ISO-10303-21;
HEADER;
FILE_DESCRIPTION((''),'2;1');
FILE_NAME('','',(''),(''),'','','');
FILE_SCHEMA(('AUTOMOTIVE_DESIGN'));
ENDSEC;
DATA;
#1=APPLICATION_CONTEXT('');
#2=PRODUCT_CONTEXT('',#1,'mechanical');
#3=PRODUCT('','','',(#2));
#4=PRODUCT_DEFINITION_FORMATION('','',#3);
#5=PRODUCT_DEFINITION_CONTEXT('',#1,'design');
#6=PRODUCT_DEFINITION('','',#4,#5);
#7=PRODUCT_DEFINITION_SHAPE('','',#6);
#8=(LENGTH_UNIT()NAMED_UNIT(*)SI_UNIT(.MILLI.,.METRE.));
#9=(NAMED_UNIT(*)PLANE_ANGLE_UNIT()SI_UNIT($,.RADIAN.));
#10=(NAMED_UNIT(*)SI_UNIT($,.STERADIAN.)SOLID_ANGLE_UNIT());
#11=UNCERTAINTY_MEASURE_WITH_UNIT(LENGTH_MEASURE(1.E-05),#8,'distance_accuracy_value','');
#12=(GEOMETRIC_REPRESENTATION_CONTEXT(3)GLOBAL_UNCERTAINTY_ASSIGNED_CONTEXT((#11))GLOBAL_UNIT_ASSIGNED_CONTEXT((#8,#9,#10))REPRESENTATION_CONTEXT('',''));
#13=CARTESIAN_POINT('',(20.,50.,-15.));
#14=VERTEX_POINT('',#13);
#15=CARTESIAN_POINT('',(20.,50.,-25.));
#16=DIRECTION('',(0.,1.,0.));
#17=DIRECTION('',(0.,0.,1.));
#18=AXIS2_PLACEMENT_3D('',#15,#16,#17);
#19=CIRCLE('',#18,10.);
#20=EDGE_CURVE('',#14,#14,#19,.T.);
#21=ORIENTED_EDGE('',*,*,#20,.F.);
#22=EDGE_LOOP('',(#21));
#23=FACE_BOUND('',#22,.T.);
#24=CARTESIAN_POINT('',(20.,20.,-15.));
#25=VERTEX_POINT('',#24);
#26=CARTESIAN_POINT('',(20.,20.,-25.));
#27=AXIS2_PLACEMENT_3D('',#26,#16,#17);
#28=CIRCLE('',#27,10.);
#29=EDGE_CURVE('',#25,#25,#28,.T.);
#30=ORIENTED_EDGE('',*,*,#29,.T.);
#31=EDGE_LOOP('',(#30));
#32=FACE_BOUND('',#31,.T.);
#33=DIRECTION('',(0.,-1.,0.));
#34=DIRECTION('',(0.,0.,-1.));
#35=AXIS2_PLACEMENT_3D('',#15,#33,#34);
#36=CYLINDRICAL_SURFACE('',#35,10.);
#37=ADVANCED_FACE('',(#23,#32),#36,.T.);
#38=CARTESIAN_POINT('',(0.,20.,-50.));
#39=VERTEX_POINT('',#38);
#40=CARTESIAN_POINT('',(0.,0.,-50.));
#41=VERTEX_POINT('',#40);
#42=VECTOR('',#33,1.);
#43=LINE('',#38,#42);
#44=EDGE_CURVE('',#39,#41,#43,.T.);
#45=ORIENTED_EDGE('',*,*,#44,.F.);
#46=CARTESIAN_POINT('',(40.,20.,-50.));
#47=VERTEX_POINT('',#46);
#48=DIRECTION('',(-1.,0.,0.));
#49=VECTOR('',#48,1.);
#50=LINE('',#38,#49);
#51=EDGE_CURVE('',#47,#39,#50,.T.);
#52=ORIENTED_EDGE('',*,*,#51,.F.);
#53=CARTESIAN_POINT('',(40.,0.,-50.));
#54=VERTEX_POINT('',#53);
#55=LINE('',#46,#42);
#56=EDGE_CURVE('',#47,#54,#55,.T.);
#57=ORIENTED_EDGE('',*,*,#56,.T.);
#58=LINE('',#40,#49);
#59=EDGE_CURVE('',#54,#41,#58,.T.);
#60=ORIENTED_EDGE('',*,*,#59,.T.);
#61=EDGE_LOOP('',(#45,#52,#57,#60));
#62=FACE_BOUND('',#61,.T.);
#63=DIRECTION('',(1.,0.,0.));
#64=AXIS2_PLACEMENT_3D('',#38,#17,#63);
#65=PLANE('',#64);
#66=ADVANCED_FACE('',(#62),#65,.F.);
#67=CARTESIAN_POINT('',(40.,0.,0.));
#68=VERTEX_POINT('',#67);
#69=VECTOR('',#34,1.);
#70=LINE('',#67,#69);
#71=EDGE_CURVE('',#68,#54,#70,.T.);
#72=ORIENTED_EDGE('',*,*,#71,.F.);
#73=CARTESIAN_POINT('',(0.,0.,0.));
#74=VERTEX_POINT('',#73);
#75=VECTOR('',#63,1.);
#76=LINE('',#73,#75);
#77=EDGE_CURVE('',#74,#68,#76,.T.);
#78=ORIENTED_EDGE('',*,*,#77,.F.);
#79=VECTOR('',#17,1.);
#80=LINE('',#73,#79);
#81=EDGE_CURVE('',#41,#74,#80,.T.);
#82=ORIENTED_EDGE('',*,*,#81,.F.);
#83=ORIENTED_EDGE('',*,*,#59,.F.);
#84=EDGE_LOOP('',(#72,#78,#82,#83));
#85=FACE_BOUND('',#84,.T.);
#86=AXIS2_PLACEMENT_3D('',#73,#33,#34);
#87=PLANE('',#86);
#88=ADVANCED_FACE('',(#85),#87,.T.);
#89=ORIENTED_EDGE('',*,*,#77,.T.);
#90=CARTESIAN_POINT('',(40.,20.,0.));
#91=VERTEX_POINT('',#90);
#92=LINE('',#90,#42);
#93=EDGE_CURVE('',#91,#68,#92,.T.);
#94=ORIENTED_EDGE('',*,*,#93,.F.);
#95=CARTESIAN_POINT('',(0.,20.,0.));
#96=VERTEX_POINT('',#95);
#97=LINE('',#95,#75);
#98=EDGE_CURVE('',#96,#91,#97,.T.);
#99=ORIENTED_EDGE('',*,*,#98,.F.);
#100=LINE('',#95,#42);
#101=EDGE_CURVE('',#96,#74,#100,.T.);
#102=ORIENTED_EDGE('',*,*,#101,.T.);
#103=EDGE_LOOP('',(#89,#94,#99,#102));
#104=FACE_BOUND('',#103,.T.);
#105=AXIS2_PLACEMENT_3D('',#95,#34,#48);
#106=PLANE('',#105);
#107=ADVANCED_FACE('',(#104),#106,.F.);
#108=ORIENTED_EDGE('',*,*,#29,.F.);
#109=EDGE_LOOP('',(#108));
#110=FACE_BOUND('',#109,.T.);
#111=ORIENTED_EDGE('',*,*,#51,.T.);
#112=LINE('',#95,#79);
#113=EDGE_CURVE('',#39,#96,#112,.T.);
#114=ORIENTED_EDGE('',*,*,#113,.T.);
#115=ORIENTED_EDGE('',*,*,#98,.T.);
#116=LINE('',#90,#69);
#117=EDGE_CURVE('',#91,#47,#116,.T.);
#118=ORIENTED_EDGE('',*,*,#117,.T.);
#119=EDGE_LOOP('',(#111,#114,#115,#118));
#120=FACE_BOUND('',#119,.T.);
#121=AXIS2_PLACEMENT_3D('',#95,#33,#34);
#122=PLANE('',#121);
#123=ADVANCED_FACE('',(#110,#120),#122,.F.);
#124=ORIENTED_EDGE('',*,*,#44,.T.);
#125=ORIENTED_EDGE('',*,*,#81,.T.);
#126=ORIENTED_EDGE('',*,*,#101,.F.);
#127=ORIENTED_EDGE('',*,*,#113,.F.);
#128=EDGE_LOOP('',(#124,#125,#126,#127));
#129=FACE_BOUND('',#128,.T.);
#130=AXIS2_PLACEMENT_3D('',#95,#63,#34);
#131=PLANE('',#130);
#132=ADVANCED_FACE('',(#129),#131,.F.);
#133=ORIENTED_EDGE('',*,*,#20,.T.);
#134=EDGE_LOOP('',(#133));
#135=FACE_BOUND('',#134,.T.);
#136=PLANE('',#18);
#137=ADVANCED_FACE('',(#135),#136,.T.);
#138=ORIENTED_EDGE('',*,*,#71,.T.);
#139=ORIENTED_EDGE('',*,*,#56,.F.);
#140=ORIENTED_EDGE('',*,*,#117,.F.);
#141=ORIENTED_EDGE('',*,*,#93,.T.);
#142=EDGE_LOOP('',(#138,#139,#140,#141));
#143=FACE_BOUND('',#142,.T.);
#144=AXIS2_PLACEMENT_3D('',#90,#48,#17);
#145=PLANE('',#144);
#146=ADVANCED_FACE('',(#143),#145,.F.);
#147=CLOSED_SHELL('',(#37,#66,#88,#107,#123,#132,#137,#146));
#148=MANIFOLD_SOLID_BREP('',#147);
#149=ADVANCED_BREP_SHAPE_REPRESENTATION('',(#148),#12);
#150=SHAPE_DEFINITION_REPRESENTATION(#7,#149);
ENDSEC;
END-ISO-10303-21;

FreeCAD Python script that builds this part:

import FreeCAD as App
import Part
import Sketcher

V = App.Vector

doc = App.newDocument("Part")
body = doc.addObject("PartDesign::Body", "Body")

sketch1 = doc.addObject("Sketcher::SketchObject", "Sketch")
body.addObject(sketch1)
sketch1.AttachmentSupport = (doc.XZ_Plane, [""])
sketch1.MapMode = "FlatFace"
sketch1.addGeometry([
    Part.LineSegment(V(0, -50, 0), V(0, 0, 0)),
    Part.LineSegment(V(0, 0, 0), V(40, 0, 0)),
    Part.LineSegment(V(40, 0, 0), V(40, -50, 0)),
    Part.LineSegment(V(40, -50, 0), V(0, -50, 0)),
], False)
sketch1.addConstraint([
    Sketcher.Constraint("Coincident", 0, 2, 1, 1),
    Sketcher.Constraint("Coincident", 1, 2, 2, 1),
    Sketcher.Constraint("Coincident", 2, 2, 3, 1),
    Sketcher.Constraint("Coincident", 3, 2, 0, 1),
    Sketcher.Constraint("Vertical", 0),
    Sketcher.Constraint("Horizontal", 1),
    Sketcher.Constraint("Vertical", 2),
    Sketcher.Constraint("Horizontal", 3),
    Sketcher.Constraint("Coincident", 0, 2, -1, 1),
    Sketcher.Constraint("DistanceX", 1, 1, 1, 2, 40.0),
    Sketcher.Constraint("DistanceY", 0, 1, 0, 2, 50.0),
])
pad1 = doc.addObject("PartDesign::Pad", "Pad")
body.addObject(pad1)
pad1.Profile = sketch1
pad1.Length = 20
pad1.Reversed = True

sketch2 = doc.addObject("Sketcher::SketchObject", "Sketch001")
body.addObject(sketch2)
sketch2.AttachmentSupport = (doc.XZ_Plane, [""])
sketch2.MapMode = "FlatFace"
sketch2.AttachmentOffset = App.Placement(V(0, 0, -20), App.Rotation())
sketch2.addGeometry(Part.Circle(V(20, -25, 0), V(0, 0, 1), 10), False)
sketch2.addConstraint([
    Sketcher.Constraint("Diameter", 0, 20.0),
    Sketcher.Constraint("DistanceX", -1, 1, 0, 3, 20.0),
    Sketcher.Constraint("DistanceY", 0, 3, -1, 1, 25.0),
])
pad2 = doc.addObject("PartDesign::Pad", "Pad001")
body.addObject(pad2)
pad2.Profile = sketch2
pad2.Length = 30
pad2.Reversed = True

doc.recompute()
